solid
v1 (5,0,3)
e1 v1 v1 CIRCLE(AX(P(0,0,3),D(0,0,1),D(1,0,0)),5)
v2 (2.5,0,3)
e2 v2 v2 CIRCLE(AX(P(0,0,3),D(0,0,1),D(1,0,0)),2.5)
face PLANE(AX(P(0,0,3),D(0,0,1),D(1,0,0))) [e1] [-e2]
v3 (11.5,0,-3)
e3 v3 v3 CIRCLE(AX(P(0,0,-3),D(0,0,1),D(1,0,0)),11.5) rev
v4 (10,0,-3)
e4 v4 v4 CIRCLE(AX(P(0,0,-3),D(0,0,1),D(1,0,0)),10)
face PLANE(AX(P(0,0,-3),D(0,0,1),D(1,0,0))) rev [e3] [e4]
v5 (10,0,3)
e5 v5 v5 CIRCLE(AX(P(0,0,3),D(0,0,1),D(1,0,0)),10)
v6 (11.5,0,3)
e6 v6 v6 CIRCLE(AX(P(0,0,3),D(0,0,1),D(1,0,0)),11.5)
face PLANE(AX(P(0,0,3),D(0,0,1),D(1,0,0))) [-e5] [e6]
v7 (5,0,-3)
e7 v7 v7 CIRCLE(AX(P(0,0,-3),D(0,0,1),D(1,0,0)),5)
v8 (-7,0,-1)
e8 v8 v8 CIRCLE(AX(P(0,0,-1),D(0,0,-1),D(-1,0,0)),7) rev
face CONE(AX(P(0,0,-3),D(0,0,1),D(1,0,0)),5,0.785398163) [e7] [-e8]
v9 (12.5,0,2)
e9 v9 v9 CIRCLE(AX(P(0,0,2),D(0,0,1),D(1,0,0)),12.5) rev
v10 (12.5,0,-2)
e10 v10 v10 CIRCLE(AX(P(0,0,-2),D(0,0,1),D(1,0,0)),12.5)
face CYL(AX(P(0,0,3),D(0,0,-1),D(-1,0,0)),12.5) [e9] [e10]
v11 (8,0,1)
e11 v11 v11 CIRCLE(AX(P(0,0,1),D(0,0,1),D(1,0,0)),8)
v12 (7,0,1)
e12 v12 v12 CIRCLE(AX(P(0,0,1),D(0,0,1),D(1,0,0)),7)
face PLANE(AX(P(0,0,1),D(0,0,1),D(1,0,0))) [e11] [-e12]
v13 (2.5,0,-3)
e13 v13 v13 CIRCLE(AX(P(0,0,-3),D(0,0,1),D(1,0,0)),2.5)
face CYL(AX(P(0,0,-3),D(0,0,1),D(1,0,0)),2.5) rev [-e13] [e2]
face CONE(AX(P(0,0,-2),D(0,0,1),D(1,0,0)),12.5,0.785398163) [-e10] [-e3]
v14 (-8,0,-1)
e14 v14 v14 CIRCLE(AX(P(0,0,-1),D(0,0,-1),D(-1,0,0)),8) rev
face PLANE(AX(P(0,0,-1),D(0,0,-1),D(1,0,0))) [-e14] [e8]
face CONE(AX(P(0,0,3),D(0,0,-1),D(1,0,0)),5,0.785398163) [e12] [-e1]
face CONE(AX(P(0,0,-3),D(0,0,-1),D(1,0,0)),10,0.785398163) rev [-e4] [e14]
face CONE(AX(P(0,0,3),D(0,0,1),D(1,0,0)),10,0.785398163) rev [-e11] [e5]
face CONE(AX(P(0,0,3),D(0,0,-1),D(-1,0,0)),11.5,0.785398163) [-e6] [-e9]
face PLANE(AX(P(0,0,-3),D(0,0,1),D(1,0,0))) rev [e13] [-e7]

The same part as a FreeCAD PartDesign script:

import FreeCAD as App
import Part
import Sketcher
from FreeCAD import Vector


def edges_at(feature, points):
    """Names of the edges that pass closest to the given points."""
    edges = feature.Shape.Edges
    near = lambda p: min(range(len(edges)), key=lambda i: edges[i].distToShape(Part.Vertex(*p))[0])
    return sorted({f"Edge{near(p) + 1}" for p in points})


def faces_at(feature, points):
    """Names of the faces that lie closest to the given points."""
    faces = feature.Shape.Faces
    near = lambda p: min(range(len(faces)), key=lambda i: faces[i].distToShape(Part.Vertex(*p))[0])
    return sorted({f"Face{near(p) + 1}" for p in points})

doc = App.newDocument("Part")
params = doc.addObject("Spreadsheet::Sheet", "Params")
for row, (alias, value) in enumerate([
    ("sketch1_diameter", "25 mm"),
    ("pad1_length", "6 mm"),
    ("sketch2_diameter", "5 mm"),
    ("pocket1_length", "6 mm"),
    ("sketch3_diameter", "20 mm"),
    ("sketch3_diameter2", "10 mm"),
    ("pad2_length", "2 mm"),
    ("draft_angle", "45 deg"),
    ("sketch4_diameter", "20 mm"),
    ("sketch4_diameter2", "10 mm"),
    ("pad3_length", "2 mm"),
    ("draft2_angle", "45 deg"),
    ("chamfer_size", "1 mm"),
], start=1):
    params.set(f"A{row}", alias)
    params.set(f"B{row}", "=" + value)
    params.setAlias(f"B{row}", alias)

body = doc.addObject("PartDesign::Body", "Body")

sketch1 = body.newObject("Sketcher::SketchObject", "Sketch")
sketch1.AttachmentSupport = (doc.getObject("XY_Plane"), [""])
sketch1.MapMode = "FlatFace"
sketch1.addGeometry(Part.Circle(Vector(0, 0, 0), Vector(0, 0, 1), 12.5), False)
sketch1.addConstraint([
    Sketcher.Constraint("Coincident", 0, 3, -1, 1),
    Sketcher.Constraint("Diameter", 0, 25.0),
])
sketch1.setExpression("Constraints[1]", "Params.sketch1_diameter")
pad1 = body.newObject("PartDesign::Pad", "Pad")
pad1.Profile = sketch1
pad1.setExpression("Length", "Params.pad1_length")
pad1.Midplane = True

sketch2 = body.newObject("Sketcher::SketchObject", "Sketch001")
sketch2.AttachmentSupport = (doc.getObject("XY_Plane"), [""])
sketch2.MapMode = "FlatFace"
sketch2.AttachmentOffset = App.Placement(Vector(0, 0, 3), App.Rotation())
sketch2.addGeometry(Part.Circle(Vector(0, 0, 0), Vector(0, 0, 1), 2.5), False)
sketch2.addConstraint([
    Sketcher.Constraint("Coincident", 0, 3, -1, 1),
    Sketcher.Constraint("Diameter", 0, 5.0),
])
sketch2.setExpression("Constraints[1]", "Params.sketch2_diameter")
pocket1 = body.newObject("PartDesign::Pocket", "Pocket")
pocket1.Profile = sketch2
pocket1.setExpression("Length", "Params.pocket1_length")
body2 = doc.addObject("PartDesign::Body", "Body001")

sketch3 = body2.newObject("Sketcher::SketchObject", "Sketch002")
sketch3.AttachmentSupport = (doc.getObject("XY_Plane001"), [""])
sketch3.MapMode = "FlatFace"
sketch3.AttachmentOffset = App.Placement(Vector(0, 0, 3), App.Rotation())
sketch3.addGeometry([
    Part.Circle(Vector(0, 0, 0), Vector(0, 0, 1), 10),
    Part.Circle(Vector(0, 0, 0), Vector(0, 0, 1), 5),
], False)
sketch3.addConstraint([
    Sketcher.Constraint("Coincident", 0, 3, -1, 1),
    Sketcher.Constraint("Coincident", 1, 3, -1, 1),
    Sketcher.Constraint("Diameter", 0, 20.0),
    Sketcher.Constraint("Diameter", 1, 10.0),
])
sketch3.setExpression("Constraints[2]", "Params.sketch3_diameter")
sketch3.setExpression("Constraints[3]", "Params.sketch3_diameter2")
pad2 = body2.newObject("PartDesign::Pad", "Pad001")
pad2.Profile = sketch3
pad2.setExpression("Length", "Params.pad2_length")
pad2.Reversed = True
doc.recompute()

datumplane = body2.newObject("PartDesign::Plane", "DatumPlane")
datumplane.AttachmentSupport = (doc.getObject("XY_Plane001"), [""])
datumplane.MapMode = "FlatFace"
datumplane.AttachmentOffset = App.Placement(Vector(0, 0, 3), App.Rotation())
draft = body2.newObject("PartDesign::Draft", "Draft")
draft.Base = (pad2, faces_at(pad2, [(-10, 0, 2), (-5, 0, 2)]))
draft.NeutralPlane = (datumplane, [""])
draft.setExpression("Angle", "Params.draft_angle")
draft.Reversed = True
doc.recompute()

boolean = body.newObject("PartDesign::Boolean", "Boolean")
boolean.Type = "Cut"
boolean.addObjects([body2])
body3 = doc.addObject("PartDesign::Body", "Body002")

sketch4 = body3.newObject("Sketcher::SketchObject", "Sketch003")
sketch4.AttachmentSupport = (doc.getObject("XY_Plane002"), [""])
sketch4.MapMode = "FlatFace"
sketch4.AttachmentOffset = App.Placement(Vector(0, 0, -3), App.Rotation())
sketch4.addGeometry([
    Part.Circle(Vector(0, 0, 0), Vector(0, 0, 1), 10),
    Part.Circle(Vector(0, 0, 0), Vector(0, 0, 1), 5),
], False)
sketch4.addConstraint([
    Sketcher.Constraint("Coincident", 0, 3, -1, 1),
    Sketcher.Constraint("Coincident", 1, 3, -1, 1),
    Sketcher.Constraint("Diameter", 0, 20.0),
    Sketcher.Constraint("Diameter", 1, 10.0),
])
sketch4.setExpression("Constraints[2]", "Params.sketch4_diameter")
sketch4.setExpression("Constraints[3]", "Params.sketch4_diameter2")
pad3 = body3.newObject("PartDesign::Pad", "Pad002")
pad3.Profile = sketch4
pad3.setExpression("Length", "Params.pad3_length")
doc.recompute()

datumplane2 = body3.newObject("PartDesign::Plane", "DatumPlane001")
datumplane2.AttachmentSupport = (doc.getObject("XY_Plane002"), [""])
datumplane2.MapMode = "FlatFace"
datumplane2.AttachmentOffset = App.Placement(Vector(0, 0, -3), App.Rotation())
draft2 = body3.newObject("PartDesign::Draft", "Draft001")
draft2.Base = (pad3, faces_at(pad3, [(-10, 0, -2), (-5, 0, -2)]))
draft2.NeutralPlane = (datumplane2, [""])
draft2.setExpression("Angle", "Params.draft2_angle")
draft2.Reversed = False
doc.recompute()

boolean2 = body.newObject("PartDesign::Boolean", "Boolean001")
boolean2.Type = "Cut"
boolean2.addObjects([body3])
doc.recompute()

chamfer = body.newObject("PartDesign::Chamfer", "Chamfer")
chamfer.Base = (boolean2, edges_at(boolean2, [(-12.5, 0, -3), (-12.5, 0, 3)]))
chamfer.setExpression("Size", "Params.chamfer_size")

doc.recompute()
